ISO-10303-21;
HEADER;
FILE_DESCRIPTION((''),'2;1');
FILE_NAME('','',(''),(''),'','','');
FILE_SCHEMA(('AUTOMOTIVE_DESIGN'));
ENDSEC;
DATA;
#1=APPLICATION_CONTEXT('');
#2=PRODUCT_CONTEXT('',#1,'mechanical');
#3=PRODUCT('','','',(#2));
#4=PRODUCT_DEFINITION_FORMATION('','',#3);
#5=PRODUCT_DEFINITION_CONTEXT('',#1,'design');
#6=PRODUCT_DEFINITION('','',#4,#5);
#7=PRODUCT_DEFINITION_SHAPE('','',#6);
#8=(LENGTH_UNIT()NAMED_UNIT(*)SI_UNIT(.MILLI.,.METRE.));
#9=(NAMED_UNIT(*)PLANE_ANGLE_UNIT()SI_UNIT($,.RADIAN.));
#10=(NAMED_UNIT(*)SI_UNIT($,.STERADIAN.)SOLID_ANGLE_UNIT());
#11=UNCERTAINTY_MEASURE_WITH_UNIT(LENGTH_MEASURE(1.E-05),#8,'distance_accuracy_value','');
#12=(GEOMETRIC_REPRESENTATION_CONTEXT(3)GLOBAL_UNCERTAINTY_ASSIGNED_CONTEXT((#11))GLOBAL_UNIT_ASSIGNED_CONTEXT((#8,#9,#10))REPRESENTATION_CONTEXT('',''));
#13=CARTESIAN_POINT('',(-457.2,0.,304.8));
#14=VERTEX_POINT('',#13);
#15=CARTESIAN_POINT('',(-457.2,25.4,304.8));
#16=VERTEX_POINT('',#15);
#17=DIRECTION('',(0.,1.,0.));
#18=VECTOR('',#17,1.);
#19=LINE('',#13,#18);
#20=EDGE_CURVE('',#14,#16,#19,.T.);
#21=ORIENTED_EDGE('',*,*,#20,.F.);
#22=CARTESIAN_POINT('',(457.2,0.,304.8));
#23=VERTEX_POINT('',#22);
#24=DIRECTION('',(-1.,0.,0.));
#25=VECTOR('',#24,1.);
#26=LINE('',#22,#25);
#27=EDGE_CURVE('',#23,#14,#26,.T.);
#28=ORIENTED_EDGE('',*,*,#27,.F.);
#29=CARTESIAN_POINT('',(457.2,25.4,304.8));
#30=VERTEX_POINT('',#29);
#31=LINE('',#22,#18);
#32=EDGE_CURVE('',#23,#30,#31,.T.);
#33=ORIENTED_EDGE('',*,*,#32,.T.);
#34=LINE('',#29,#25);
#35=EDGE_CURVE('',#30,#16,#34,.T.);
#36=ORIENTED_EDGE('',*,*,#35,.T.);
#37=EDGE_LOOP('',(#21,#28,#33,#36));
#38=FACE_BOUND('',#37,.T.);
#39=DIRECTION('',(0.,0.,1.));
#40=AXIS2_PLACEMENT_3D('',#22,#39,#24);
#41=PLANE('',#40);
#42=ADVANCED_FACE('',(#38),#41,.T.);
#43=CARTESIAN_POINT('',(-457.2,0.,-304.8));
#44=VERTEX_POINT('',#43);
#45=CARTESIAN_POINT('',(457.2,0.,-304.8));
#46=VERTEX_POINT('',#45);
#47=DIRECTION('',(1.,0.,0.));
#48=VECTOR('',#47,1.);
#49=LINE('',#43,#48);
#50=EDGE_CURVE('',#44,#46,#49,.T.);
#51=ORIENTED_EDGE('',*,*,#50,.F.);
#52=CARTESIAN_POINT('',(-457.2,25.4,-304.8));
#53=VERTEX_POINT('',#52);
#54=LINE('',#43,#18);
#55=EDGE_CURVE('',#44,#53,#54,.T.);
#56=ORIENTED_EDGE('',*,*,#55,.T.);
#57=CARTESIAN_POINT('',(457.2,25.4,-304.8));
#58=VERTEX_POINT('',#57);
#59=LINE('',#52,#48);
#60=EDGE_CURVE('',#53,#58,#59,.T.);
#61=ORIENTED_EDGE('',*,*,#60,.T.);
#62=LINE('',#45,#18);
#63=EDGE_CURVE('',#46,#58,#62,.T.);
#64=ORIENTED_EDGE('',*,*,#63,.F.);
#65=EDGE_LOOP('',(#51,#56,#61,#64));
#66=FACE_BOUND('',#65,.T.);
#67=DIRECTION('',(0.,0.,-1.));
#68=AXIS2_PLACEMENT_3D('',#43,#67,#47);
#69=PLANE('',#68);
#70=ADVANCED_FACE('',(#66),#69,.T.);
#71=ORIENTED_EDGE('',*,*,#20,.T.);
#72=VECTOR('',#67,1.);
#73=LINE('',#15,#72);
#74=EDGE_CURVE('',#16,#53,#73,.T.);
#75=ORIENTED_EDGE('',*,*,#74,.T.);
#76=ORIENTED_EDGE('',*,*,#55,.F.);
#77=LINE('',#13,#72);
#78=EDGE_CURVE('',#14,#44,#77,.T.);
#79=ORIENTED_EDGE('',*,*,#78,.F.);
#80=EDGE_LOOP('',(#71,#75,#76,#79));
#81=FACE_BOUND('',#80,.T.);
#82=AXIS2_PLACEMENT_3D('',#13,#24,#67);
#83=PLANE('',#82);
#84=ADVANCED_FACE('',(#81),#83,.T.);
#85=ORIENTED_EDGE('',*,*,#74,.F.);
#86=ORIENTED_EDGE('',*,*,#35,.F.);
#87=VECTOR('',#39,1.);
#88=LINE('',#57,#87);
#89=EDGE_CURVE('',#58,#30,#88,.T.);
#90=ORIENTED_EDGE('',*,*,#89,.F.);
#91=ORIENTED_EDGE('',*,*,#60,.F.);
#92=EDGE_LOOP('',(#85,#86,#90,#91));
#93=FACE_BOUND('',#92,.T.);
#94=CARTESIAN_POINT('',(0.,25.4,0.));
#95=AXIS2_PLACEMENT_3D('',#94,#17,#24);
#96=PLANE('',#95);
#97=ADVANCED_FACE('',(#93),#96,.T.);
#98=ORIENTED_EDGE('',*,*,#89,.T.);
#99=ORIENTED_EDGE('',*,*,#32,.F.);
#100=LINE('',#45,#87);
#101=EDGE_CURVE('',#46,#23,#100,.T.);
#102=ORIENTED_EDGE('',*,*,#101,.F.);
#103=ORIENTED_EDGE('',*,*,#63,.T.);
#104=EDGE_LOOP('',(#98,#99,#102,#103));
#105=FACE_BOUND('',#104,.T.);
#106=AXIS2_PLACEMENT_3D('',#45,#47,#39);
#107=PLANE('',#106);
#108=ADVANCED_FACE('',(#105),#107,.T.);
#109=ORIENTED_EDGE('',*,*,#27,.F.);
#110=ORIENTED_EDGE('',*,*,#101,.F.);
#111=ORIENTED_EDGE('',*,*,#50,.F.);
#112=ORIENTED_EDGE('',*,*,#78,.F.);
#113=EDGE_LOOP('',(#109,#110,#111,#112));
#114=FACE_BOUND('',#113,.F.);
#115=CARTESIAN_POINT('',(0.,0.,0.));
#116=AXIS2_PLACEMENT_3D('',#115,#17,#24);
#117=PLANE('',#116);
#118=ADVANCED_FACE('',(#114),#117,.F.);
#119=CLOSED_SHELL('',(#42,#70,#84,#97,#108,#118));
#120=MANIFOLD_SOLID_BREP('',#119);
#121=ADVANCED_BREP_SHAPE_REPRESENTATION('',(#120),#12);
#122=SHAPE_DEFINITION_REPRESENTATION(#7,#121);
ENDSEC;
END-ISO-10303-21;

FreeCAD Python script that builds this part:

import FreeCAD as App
import Part
import Sketcher
Q = App.Units.Quantity


def add_polygon(sketch, points):
    """Adds a closed chain of lines whose ends are joined by coincident constraints."""
    first, n = sketch.GeometryCount, len(points)
    for a, b in zip(points, points[1:] + points[:1]):
        sketch.addGeometry(Part.LineSegment(App.Vector(*a, 0), App.Vector(*b, 0)), False)
    for i in range(n):
        sketch.addConstraint(Sketcher.Constraint("Coincident", first + i, 2, first + (i + 1) % n, 1))

doc = App.newDocument("Part")
body = doc.addObject("PartDesign::Body", "Body")

# Sketch on XZ plane
sketch1 = body.newObject("Sketcher::SketchObject", "Sketch")
sketch1.AttachmentSupport = (doc.getObject("XZ_Plane"), [""])
sketch1.MapMode = "FlatFace"
add_polygon(sketch1, [(457.2, -304.8), (-457.2, -304.8), (-457.2, 304.8), (457.2, 304.8)])  # lines 0-3
sketch1.addConstraint([
    Sketcher.Constraint("Horizontal", 0),
    Sketcher.Constraint("Vertical", 1),
    Sketcher.Constraint("Horizontal", 2),
    Sketcher.Constraint("Vertical", 3),
    Sketcher.Constraint("Symmetric", 0, 2, 2, 2, -1, 1),
    Sketcher.Constraint("DistanceX", 0, 2, 0, 1, Q("36 in")),
    Sketcher.Constraint("DistanceY", 1, 1, 1, 2, Q("24 in")),
])
pad1 = body.newObject("PartDesign::Pad", "Pad")
pad1.Profile = sketch1
pad1.Length = Q("1 in")
pad1.Reversed = True

doc.recompute()
